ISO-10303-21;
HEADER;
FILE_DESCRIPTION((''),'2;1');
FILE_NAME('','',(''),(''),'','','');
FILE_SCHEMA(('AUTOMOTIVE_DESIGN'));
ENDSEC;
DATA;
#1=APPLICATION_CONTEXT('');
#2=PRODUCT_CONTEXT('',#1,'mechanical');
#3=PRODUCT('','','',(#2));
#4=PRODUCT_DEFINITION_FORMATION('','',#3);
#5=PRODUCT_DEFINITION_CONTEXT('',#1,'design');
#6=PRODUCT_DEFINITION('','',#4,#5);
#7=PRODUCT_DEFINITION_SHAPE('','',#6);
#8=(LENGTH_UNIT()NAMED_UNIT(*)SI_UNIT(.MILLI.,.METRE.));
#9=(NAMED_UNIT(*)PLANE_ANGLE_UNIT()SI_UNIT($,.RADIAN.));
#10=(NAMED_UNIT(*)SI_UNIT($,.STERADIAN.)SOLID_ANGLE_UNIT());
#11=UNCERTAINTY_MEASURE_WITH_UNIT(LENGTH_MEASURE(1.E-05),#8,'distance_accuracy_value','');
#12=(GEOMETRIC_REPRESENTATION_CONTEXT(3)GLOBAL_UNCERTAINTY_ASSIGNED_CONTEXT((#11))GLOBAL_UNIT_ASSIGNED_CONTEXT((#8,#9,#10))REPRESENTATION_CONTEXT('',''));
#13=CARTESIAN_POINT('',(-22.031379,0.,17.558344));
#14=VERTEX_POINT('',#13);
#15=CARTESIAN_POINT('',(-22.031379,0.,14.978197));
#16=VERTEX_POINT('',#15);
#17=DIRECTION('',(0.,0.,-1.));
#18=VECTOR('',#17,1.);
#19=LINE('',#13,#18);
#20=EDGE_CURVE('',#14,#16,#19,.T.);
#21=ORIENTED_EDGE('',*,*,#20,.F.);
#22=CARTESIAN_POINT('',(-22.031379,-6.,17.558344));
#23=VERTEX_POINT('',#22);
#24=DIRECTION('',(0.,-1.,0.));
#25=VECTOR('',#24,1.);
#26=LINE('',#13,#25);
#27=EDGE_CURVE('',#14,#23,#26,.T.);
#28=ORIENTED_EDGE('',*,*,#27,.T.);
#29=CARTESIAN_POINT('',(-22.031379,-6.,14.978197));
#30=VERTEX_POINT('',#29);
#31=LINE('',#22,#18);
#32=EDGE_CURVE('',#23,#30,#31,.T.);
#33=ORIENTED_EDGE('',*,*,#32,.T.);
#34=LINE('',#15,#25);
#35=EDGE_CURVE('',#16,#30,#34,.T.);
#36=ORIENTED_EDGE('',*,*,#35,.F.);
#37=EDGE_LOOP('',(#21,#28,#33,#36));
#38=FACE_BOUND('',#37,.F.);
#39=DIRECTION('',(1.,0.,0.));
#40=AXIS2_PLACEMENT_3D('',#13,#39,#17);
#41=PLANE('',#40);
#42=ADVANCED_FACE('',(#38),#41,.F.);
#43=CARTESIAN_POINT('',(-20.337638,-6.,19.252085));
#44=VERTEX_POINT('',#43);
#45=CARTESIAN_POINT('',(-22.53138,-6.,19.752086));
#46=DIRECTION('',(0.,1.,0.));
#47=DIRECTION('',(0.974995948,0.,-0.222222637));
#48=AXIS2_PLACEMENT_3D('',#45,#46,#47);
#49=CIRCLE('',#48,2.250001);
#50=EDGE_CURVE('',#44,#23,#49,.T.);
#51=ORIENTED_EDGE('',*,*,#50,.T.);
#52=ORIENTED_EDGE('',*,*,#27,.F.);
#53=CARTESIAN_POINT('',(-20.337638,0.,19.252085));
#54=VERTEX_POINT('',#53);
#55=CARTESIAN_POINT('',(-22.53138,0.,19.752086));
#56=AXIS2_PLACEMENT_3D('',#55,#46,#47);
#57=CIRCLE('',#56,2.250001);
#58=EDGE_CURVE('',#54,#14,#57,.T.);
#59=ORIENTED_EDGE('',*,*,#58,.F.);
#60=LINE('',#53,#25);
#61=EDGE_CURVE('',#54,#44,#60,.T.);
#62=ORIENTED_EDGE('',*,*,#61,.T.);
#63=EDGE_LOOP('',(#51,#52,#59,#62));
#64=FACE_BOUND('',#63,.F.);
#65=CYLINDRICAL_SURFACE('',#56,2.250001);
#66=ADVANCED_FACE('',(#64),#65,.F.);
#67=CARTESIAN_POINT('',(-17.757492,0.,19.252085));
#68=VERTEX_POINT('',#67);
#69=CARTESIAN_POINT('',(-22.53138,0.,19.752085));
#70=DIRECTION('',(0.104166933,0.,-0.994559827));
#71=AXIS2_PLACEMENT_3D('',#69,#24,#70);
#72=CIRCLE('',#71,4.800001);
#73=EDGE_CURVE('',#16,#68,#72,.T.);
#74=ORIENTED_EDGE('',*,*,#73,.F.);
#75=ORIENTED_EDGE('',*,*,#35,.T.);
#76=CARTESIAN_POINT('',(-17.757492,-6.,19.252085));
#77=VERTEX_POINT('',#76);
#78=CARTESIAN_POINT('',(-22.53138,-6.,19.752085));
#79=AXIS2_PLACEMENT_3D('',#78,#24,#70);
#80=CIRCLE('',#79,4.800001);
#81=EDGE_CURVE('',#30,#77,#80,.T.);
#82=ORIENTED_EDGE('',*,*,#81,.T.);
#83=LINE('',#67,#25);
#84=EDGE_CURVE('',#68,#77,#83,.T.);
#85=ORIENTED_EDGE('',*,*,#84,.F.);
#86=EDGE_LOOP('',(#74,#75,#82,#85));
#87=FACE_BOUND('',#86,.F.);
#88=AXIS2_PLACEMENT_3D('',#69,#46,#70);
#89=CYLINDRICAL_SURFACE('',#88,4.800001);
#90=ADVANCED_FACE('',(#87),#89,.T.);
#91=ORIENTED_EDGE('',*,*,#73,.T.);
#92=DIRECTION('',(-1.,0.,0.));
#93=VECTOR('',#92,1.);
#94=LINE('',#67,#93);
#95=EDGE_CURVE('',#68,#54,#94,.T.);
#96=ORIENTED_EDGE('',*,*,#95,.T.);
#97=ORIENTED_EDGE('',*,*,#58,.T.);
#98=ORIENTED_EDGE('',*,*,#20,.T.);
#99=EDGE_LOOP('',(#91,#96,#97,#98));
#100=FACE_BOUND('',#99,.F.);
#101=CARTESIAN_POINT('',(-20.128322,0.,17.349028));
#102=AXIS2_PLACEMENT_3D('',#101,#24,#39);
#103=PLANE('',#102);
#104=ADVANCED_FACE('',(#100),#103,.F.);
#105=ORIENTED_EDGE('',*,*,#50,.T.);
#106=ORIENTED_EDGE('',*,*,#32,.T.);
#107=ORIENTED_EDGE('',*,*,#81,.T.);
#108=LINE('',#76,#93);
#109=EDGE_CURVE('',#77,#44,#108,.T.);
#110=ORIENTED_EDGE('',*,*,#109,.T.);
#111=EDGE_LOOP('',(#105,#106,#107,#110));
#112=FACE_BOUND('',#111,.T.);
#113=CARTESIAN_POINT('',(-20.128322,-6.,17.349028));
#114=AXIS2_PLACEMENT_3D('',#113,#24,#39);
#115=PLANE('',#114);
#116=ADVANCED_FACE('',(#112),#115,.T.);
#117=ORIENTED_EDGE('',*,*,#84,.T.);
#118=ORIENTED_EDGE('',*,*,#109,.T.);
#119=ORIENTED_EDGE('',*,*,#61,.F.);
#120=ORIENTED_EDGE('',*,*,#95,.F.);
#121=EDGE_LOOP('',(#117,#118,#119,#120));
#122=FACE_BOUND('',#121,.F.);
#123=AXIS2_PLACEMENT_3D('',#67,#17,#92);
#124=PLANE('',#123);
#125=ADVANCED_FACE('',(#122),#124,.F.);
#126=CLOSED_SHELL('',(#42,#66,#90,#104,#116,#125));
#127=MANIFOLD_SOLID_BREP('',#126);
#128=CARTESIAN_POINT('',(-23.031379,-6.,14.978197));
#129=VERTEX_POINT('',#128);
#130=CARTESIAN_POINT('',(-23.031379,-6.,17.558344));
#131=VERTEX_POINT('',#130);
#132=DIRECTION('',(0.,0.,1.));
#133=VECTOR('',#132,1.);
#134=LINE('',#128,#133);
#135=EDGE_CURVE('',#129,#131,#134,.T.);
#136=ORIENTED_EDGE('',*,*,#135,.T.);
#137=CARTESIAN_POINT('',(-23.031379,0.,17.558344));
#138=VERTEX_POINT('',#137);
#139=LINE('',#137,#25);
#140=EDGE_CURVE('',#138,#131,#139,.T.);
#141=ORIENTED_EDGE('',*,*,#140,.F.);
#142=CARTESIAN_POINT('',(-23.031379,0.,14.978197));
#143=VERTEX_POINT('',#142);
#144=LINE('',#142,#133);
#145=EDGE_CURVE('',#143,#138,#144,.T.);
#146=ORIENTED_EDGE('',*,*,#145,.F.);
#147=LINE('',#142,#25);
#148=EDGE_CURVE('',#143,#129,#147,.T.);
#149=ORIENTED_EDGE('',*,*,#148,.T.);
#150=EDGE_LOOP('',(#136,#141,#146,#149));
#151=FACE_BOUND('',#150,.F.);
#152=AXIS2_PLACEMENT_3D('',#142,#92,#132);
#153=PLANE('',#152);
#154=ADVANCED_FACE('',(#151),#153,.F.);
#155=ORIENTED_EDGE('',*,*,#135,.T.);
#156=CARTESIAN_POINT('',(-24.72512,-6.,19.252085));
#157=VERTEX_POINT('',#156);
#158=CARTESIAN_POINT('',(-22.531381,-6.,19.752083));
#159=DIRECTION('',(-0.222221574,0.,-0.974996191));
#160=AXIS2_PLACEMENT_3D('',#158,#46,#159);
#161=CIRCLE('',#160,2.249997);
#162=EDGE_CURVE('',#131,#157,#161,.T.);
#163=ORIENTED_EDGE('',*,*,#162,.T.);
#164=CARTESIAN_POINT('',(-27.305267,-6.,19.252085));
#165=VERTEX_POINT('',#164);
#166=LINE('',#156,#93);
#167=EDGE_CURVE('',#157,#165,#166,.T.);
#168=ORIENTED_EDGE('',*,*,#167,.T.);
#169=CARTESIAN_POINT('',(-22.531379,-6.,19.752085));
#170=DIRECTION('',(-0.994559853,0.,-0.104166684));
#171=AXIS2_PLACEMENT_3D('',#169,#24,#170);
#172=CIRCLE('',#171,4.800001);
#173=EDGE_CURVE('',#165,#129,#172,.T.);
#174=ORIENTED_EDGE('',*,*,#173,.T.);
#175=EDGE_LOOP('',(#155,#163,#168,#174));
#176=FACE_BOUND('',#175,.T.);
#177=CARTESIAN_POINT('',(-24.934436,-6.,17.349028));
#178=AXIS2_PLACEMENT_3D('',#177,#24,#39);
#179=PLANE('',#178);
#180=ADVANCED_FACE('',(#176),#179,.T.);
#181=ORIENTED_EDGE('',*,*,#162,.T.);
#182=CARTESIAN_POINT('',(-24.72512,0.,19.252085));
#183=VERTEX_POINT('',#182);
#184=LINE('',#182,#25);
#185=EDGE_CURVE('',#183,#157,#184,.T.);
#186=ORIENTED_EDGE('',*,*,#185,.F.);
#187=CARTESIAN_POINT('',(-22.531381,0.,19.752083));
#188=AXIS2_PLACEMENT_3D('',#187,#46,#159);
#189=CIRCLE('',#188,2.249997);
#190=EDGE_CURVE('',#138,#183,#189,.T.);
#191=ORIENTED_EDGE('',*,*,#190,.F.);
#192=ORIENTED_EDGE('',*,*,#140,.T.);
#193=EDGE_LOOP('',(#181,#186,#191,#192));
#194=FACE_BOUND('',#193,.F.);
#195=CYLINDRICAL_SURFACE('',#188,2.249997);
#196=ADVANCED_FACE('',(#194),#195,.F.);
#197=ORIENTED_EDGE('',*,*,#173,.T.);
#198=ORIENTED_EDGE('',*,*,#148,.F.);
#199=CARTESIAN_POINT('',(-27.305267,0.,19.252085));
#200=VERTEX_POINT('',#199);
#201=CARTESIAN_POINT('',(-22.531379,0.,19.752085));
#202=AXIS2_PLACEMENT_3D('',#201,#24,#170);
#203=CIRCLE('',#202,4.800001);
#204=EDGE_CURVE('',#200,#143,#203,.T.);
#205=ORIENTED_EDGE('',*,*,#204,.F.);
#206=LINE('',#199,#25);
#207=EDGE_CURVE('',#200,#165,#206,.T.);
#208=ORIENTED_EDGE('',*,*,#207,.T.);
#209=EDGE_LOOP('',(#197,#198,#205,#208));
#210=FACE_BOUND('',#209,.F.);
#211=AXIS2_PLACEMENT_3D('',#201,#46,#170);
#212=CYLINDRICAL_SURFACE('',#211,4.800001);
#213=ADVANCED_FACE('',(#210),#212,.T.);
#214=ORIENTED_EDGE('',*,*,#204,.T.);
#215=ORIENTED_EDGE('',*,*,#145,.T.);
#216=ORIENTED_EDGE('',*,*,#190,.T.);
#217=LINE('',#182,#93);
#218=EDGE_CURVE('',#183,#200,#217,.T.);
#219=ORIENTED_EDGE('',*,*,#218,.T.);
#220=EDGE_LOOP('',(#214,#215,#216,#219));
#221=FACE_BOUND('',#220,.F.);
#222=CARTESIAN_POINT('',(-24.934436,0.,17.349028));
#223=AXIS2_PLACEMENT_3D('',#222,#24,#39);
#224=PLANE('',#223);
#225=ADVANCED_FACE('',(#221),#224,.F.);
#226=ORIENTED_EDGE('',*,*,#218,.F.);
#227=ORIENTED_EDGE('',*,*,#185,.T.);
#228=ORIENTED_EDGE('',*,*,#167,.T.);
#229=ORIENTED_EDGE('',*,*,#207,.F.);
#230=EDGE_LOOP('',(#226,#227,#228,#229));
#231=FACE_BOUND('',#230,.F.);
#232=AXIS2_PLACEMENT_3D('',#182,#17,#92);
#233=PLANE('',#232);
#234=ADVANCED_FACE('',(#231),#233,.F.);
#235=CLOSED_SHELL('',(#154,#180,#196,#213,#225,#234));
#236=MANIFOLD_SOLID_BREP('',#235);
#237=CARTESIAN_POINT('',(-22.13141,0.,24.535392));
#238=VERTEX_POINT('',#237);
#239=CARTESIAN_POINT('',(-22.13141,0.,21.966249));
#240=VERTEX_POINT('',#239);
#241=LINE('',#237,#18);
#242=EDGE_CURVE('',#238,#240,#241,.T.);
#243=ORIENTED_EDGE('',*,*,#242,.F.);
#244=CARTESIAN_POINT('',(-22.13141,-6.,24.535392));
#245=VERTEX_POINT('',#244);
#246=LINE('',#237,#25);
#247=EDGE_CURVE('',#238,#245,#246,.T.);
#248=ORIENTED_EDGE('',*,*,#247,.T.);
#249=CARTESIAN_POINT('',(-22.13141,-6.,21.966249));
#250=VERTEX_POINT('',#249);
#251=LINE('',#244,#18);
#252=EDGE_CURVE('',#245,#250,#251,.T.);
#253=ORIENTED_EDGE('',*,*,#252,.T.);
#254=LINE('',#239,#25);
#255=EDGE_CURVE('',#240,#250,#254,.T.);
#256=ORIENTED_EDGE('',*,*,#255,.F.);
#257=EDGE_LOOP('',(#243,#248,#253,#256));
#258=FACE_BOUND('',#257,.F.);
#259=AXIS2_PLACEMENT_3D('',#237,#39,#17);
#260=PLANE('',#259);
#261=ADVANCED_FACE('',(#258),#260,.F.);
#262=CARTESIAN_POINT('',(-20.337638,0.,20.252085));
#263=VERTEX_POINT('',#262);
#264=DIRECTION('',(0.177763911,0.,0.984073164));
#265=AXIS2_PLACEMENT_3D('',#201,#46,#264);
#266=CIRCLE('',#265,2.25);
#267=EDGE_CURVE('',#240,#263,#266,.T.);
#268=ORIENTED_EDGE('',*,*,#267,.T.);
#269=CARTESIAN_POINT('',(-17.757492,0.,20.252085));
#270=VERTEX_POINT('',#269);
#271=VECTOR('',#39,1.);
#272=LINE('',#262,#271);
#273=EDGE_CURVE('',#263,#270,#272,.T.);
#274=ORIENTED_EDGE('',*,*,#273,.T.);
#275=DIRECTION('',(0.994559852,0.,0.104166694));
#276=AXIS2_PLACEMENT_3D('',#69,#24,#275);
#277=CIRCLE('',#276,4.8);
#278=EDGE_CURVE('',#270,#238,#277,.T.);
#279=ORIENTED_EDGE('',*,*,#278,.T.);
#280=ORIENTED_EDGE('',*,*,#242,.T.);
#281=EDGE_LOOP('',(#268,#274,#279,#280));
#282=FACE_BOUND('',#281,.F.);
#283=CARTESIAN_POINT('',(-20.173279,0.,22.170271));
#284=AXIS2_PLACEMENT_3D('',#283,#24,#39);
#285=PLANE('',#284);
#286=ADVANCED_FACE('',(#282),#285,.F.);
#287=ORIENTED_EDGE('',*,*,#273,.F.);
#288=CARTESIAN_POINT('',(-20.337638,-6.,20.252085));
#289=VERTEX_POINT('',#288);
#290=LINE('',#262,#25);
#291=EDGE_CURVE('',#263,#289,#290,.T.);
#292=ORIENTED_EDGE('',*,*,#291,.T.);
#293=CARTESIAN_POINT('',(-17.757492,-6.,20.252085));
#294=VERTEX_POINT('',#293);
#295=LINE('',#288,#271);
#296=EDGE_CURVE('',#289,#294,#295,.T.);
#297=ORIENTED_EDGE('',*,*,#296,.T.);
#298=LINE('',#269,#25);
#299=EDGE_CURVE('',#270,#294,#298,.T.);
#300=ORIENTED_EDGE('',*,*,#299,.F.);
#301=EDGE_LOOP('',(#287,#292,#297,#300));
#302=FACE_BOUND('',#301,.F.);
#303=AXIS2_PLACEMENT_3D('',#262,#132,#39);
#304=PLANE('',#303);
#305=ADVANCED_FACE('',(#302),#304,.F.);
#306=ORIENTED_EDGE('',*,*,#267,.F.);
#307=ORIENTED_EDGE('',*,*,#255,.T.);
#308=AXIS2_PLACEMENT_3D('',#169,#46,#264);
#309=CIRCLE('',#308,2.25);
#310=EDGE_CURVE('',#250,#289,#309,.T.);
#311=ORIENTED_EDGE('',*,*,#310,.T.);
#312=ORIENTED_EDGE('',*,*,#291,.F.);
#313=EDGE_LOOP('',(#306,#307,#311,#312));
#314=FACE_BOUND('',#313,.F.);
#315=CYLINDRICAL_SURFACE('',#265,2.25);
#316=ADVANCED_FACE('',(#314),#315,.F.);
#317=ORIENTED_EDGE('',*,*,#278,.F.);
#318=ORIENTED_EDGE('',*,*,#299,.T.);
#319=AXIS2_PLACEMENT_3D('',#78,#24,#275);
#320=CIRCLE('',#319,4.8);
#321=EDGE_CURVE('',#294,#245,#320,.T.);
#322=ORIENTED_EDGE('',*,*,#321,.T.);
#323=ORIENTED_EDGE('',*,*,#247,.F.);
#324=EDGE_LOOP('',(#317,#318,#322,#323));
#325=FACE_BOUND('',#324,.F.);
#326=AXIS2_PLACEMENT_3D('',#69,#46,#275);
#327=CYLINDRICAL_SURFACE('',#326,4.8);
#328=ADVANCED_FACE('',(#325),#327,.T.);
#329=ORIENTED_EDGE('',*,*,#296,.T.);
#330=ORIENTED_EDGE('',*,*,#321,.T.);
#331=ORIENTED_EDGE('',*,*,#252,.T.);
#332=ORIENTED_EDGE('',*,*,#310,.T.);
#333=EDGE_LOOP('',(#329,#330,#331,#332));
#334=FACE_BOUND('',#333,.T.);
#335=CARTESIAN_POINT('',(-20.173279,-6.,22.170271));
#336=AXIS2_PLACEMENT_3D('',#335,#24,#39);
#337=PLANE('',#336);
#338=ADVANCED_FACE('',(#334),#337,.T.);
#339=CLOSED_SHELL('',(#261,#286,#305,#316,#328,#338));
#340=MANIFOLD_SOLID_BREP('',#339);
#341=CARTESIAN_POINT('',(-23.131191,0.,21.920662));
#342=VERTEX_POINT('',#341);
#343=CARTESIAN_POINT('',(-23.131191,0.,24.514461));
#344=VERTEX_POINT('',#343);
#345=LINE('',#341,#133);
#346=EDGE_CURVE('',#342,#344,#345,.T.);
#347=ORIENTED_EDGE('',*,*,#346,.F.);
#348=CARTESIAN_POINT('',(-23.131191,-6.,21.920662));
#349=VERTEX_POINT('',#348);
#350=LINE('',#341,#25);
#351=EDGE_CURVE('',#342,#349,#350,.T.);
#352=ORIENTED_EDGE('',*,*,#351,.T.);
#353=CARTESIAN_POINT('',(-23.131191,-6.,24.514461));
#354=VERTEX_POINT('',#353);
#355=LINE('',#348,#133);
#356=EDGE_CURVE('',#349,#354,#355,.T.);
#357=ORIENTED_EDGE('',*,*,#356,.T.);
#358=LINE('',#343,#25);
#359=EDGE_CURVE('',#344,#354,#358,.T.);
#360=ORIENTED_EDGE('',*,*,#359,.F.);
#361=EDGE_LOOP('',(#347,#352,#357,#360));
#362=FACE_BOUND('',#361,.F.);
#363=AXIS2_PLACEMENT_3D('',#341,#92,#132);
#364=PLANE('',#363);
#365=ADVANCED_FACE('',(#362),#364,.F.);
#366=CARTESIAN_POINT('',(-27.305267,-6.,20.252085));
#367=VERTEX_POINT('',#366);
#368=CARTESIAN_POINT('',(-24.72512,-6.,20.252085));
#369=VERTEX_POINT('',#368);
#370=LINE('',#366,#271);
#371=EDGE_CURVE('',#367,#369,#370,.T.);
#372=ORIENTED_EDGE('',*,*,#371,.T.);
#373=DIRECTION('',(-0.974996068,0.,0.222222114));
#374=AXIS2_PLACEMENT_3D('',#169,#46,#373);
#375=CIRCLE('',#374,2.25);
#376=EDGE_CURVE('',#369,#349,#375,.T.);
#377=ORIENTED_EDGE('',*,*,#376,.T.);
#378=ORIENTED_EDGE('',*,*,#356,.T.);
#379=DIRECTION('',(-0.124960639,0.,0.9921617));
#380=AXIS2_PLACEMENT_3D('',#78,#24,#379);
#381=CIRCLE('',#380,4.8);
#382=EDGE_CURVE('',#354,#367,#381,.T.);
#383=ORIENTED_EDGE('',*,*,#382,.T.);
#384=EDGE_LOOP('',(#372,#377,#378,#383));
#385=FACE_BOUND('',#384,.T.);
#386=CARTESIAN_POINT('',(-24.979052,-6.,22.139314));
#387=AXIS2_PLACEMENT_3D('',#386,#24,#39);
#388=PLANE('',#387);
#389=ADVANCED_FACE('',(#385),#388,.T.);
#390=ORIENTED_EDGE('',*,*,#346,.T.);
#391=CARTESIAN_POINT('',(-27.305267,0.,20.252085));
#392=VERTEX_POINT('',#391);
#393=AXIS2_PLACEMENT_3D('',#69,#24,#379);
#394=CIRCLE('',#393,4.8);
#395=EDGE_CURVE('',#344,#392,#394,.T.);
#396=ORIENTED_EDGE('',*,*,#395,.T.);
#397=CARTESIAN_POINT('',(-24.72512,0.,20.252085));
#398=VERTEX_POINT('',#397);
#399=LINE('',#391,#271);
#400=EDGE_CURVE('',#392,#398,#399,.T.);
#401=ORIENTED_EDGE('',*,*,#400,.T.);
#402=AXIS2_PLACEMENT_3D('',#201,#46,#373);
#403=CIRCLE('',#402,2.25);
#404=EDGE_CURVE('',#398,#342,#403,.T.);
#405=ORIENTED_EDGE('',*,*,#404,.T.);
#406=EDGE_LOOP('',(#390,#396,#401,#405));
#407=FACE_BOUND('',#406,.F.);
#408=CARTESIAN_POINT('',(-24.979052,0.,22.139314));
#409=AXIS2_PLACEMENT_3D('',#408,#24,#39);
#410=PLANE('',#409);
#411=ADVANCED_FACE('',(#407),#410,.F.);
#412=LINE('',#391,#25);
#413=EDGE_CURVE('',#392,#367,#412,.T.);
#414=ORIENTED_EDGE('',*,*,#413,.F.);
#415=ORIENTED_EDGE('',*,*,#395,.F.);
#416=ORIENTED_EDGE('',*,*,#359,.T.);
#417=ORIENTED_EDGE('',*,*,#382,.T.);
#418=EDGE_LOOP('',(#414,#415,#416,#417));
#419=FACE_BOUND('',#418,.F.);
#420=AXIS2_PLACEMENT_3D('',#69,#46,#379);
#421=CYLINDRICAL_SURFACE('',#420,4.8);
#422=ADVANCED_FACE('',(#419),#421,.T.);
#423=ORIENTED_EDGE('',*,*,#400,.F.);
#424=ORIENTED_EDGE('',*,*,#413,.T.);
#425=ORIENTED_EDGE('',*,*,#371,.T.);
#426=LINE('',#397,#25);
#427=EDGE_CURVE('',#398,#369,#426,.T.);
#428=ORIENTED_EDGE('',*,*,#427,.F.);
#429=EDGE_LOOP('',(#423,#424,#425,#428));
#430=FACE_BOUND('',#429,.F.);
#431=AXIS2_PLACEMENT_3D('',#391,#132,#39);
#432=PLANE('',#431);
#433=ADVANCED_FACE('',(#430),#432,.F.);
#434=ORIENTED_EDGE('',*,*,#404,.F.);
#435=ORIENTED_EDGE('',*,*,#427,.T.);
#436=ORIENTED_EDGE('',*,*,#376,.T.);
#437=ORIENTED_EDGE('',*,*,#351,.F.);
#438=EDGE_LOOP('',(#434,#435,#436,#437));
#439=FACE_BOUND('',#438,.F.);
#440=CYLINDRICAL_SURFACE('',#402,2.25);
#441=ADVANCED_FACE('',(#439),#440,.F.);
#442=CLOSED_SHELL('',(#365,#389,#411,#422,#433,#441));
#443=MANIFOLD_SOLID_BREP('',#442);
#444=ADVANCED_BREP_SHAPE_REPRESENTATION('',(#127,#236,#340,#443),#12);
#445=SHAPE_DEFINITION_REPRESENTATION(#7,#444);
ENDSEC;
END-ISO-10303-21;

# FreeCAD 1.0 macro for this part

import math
import FreeCAD as App
import Part
import Sketcher

V = App.Vector
Q = App.Units.Quantity

doc = App.newDocument("Part")
params = doc.addObject("Spreadsheet::Sheet", "Params")
for row, (alias, value) in enumerate([
    ("sketch1_radius", "4.8 mm"),
    ("sketch1_radius2", "2.25 mm"),
    ("pad1_length", "6 mm"),
], start=1):
    params.set(f"A{row}", alias)
    params.set(f"B{row}", "=" + value)
    params.setAlias(f"B{row}", alias)

body = doc.addObject("PartDesign::Body", "Body")
body.AllowCompound = True

# Sketch on XZ plane
sketch1 = body.newObject("Sketcher::SketchObject", "Sketch")
sketch1.AttachmentSupport = (doc.getObject("XZ_Plane"), [""])
sketch1.MapMode = "FlatFace"
sketch1.addGeometry([
    Part.LineSegment(V(-23.1, 21.9, 0), V(-23.1, 24.5, 0)),  # 0
    Part.ArcOfCircle(Part.Circle(V(-22.5, 19.8, 0), V(0, 0, 1), 4.8), math.radians(97), math.radians(174)),  # 1
    Part.LineSegment(V(-27.3, 20.3, 0), V(-24.7, 20.3, 0)),  # 2
    Part.ArcOfCircle(Part.Circle(V(-22.5, 19.8, 0), V(0, 0, 1), 2.2), math.radians(105), math.radians(167)),  # 3
    Part.LineSegment(V(-20.3, 20.3, 0), V(-17.8, 20.3, 0)),  # 4
    Part.ArcOfCircle(Part.Circle(V(-22.5, 19.8, 0), V(0, 0, 1), 4.8), math.radians(6), math.radians(85)),  # 5
    Part.LineSegment(V(-22.1, 24.5, 0), V(-22.1, 22, 0)),  # 6
    Part.ArcOfCircle(Part.Circle(V(-22.5, 19.8, 0), V(0, 0, 1), 2.2), math.radians(13), math.radians(80)),  # 7
    Part.ArcOfCircle(Part.Circle(V(-22.5, 19.8, 0), V(0, 0, 1), 4.8), math.radians(-84), math.radians(-6)),  # 8
    Part.LineSegment(V(-17.8, 19.3, 0), V(-20.3, 19.3, 0)),  # 9
    Part.ArcOfCircle(Part.Circle(V(-22.5, 19.8, 0), V(0, 0, 1), 2.3), math.radians(-77), math.radians(-13)),  # 10
    Part.LineSegment(V(-22, 17.6, 0), V(-22, 15, 0)),  # 11
    Part.ArcOfCircle(Part.Circle(V(-22.5, 19.8, 0), V(0, 0, 1), 4.8), math.radians(-174), math.radians(-96)),  # 12
    Part.LineSegment(V(-23, 15, 0), V(-23, 17.6, 0)),  # 13
    Part.ArcOfCircle(Part.Circle(V(-22.5, 19.8, 0), V(0, 0, 1), 2.2), math.radians(-167), math.radians(-103)),  # 14
    Part.LineSegment(V(-24.7, 19.3, 0), V(-27.3, 19.3, 0)),  # 15
], False)
sketch1.addConstraint([
    Sketcher.Constraint("Coincident", 0, 2, 1, 1),
    Sketcher.Constraint("Coincident", 1, 2, 2, 1),
    Sketcher.Constraint("Coincident", 2, 2, 3, 2),
    Sketcher.Constraint("Coincident", 3, 1, 0, 1),
    Sketcher.Constraint("Coincident", 4, 2, 5, 1),
    Sketcher.Constraint("Coincident", 5, 2, 6, 1),
    Sketcher.Constraint("Coincident", 6, 2, 7, 2),
    Sketcher.Constraint("Coincident", 7, 1, 4, 1),
    Sketcher.Constraint("Coincident", 8, 2, 9, 1),
    Sketcher.Constraint("Coincident", 9, 2, 10, 2),
    Sketcher.Constraint("Coincident", 10, 1, 11, 1),
    Sketcher.Constraint("Coincident", 11, 2, 8, 1),
    Sketcher.Constraint("Coincident", 12, 2, 13, 1),
    Sketcher.Constraint("Coincident", 13, 2, 14, 2),
    Sketcher.Constraint("Coincident", 14, 1, 15, 1),
    Sketcher.Constraint("Coincident", 15, 2, 12, 1),
    Sketcher.Constraint("Vertical", 0),
    Sketcher.Constraint("Horizontal", 2),
    Sketcher.Constraint("Horizontal", 4),
    Sketcher.Constraint("Vertical", 6),
    Sketcher.Constraint("Horizontal", 9),
    Sketcher.Constraint("Vertical", 11),
    Sketcher.Constraint("Vertical", 13),
    Sketcher.Constraint("Horizontal", 15),
    Sketcher.Constraint("Coincident", 3, 3, 1, 3),
    Sketcher.Constraint("Coincident", 5, 3, 1, 3),
    Sketcher.Constraint("Coincident", 7, 3, 1, 3),
    Sketcher.Constraint("Coincident", 8, 3, 1, 3),
    Sketcher.Constraint("Coincident", 10, 3, 1, 3),
    Sketcher.Constraint("Coincident", 12, 3, 1, 3),
    Sketcher.Constraint("Coincident", 14, 3, 1, 3),
    Sketcher.Constraint("Equal", 1, 5),
    Sketcher.Constraint("Equal", 3, 7),
    Sketcher.Constraint("Equal", 5, 8),
    Sketcher.Constraint("Equal", 7, 10),
    Sketcher.Constraint("Equal", 8, 12),
    Sketcher.Constraint("Horizontal", 2, 2, 4, 2),
    Sketcher.Constraint("Horizontal", 11, 2, 12, 2),
    Sketcher.Constraint("Horizontal", 10, 1, 13, 2),
    Sketcher.Constraint("Horizontal", 9, 2, 14, 1),
    Sketcher.Constraint("Vertical", 4, 2, 8, 2),
    Sketcher.Constraint("Equal", 15, 11),
    Sketcher.Constraint("Radius", 1, Q("4.8 mm")),
    Sketcher.Constraint("Radius", 3, Q("2.25 mm")),
    Sketcher.Constraint("DistanceY", 8, 2, 4, 2, Q("1 mm")),
    Sketcher.Constraint("DistanceY", 0, 1, 0, 2, Q("2.593799 mm")),
    Sketcher.Constraint("DistanceY", 6, 2, 6, 1, Q("2.569143 mm")),
    Sketcher.Constraint("DistanceX", 1, 3, -1, 1, Q("22.53138 mm")),
    Sketcher.Constraint("DistanceY", -1, 1, 0, 2, Q("24.514461 mm")),
])
sketch1.setExpression("Constraints[42]", "Params.sketch1_radius")
sketch1.setExpression("Constraints[43]", "Params.sketch1_radius2")
pad1 = body.newObject("PartDesign::Pad", "Pad")
pad1.Profile = sketch1
pad1.setExpression("Length", "Params.pad1_length")

doc.recompute()
